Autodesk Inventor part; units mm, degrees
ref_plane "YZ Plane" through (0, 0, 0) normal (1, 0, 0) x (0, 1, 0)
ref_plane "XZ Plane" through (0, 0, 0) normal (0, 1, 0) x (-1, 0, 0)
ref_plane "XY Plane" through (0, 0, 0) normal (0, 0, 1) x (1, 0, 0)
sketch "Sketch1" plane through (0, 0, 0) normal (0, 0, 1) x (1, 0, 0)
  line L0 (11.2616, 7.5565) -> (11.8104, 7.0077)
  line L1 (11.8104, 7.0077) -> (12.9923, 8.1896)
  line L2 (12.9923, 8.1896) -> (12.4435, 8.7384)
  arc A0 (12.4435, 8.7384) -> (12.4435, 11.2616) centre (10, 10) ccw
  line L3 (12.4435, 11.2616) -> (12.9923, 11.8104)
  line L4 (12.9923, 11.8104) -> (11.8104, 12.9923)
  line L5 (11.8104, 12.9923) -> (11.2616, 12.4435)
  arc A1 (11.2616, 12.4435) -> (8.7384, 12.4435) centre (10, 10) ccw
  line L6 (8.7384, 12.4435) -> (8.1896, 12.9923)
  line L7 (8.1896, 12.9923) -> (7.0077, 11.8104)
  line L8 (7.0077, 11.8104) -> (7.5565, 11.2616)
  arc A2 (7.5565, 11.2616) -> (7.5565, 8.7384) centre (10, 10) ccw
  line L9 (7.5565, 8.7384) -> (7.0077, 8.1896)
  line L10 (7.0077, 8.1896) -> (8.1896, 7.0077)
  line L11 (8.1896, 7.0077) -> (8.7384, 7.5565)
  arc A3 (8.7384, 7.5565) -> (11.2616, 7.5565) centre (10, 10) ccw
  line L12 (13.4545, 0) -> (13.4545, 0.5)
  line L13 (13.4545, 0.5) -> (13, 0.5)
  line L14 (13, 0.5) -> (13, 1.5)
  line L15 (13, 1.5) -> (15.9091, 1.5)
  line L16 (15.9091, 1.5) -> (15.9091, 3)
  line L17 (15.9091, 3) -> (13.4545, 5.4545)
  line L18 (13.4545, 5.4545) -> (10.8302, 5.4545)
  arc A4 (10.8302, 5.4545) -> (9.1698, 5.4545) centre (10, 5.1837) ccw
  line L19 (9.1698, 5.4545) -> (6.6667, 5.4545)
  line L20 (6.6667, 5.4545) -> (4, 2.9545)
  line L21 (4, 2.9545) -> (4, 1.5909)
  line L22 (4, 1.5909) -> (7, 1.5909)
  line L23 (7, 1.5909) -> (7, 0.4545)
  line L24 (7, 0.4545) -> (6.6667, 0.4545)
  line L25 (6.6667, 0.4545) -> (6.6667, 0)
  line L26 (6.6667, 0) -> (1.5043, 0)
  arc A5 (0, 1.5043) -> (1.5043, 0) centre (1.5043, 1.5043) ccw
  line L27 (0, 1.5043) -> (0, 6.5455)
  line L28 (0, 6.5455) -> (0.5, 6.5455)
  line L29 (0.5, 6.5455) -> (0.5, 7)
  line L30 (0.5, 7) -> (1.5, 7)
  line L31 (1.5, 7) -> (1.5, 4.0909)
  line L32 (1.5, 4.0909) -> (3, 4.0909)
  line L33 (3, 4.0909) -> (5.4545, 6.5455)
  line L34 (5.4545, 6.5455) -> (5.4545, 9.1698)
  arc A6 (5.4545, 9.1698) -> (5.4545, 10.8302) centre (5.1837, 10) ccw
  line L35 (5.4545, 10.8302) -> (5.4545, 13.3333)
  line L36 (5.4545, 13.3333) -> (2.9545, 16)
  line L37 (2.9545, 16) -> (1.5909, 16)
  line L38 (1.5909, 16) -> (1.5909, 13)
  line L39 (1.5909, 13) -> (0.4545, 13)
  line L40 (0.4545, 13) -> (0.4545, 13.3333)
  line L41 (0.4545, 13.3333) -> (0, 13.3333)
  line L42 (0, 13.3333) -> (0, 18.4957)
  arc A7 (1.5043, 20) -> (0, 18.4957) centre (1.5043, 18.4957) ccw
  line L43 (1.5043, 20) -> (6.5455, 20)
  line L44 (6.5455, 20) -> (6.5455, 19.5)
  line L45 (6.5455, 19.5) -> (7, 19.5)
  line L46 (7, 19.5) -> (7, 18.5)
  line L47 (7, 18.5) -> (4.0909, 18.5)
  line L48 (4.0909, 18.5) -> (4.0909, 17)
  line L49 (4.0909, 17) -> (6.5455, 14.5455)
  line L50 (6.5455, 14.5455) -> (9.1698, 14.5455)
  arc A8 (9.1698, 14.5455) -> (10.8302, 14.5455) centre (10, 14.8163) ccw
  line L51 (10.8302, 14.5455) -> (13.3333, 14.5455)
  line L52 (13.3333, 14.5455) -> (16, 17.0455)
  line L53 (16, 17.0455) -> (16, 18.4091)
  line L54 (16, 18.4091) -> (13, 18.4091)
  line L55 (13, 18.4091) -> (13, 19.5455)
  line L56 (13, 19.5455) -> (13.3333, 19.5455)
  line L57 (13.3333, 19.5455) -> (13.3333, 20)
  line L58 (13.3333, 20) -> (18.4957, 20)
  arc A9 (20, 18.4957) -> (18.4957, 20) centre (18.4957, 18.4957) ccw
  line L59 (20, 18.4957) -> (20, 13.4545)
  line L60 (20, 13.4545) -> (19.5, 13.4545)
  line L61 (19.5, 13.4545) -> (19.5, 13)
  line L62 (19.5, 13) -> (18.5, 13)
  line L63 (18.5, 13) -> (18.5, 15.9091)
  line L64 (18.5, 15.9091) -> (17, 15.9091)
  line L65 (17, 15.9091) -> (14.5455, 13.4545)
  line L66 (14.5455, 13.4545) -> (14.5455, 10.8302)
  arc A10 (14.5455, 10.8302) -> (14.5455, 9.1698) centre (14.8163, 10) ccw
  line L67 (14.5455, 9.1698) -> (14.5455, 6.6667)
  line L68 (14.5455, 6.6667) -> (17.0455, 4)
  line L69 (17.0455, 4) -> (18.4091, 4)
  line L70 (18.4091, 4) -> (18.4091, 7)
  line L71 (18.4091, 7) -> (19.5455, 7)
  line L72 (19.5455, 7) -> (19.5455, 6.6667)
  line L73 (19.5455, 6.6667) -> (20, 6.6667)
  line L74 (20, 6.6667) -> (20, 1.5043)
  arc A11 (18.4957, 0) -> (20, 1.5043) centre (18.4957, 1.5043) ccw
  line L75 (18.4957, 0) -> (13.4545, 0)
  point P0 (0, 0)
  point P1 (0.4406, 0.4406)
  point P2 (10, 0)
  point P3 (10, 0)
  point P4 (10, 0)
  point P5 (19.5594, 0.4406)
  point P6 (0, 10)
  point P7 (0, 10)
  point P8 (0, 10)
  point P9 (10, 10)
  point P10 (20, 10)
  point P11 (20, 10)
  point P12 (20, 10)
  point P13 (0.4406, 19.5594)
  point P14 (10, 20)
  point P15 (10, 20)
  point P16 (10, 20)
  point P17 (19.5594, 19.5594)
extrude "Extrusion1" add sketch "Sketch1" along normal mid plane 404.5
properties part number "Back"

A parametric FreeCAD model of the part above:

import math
import FreeCAD as App
import Part
import Sketcher

doc = App.newDocument("Part")
body = doc.addObject("PartDesign::Body", "Body")

# Sketch on XY plane
sketch1 = body.newObject("Sketcher::SketchObject", "Sketch")
sketch1.AttachmentSupport = (doc.getObject("XY_Plane"), [""])
sketch1.MapMode = "FlatFace"
sketch1.addGeometry([
    Part.LineSegment(App.Vector(13.45, 0.5, 0), App.Vector(13.45, 0, 0)),  # 0
    Part.LineSegment(App.Vector(13.45, 0, 0), App.Vector(18.5, 0, 0)),  # 1
    Part.ArcOfCircle(Part.Circle(App.Vector(18.5, 1.5, 0), App.Vector(0, 0, 1), 1.5), math.radians(-90), math.radians(0)),  # 2
    Part.LineSegment(App.Vector(20, 1.5, 0), App.Vector(20, 6.67, 0)),  # 3
    Part.LineSegment(App.Vector(20, 6.67, 0), App.Vector(19.55, 6.67, 0)),  # 4
    Part.LineSegment(App.Vector(19.55, 6.67, 0), App.Vector(19.55, 7, 0)),  # 5
    Part.LineSegment(App.Vector(19.55, 7, 0), App.Vector(18.41, 7, 0)),  # 6
    Part.LineSegment(App.Vector(18.41, 7, 0), App.Vector(18.41, 4, 0)),  # 7
    Part.LineSegment(App.Vector(18.41, 4, 0), App.Vector(17.05, 4, 0)),  # 8
    Part.LineSegment(App.Vector(17.05, 4, 0), App.Vector(14.55, 6.67, 0)),  # 9
    Part.LineSegment(App.Vector(14.55, 6.67, 0), App.Vector(14.55, 9.17, 0)),  # 10
    Part.ArcOfCircle(Part.Circle(App.Vector(14.82, 10, 0), App.Vector(0, 0, 1), 0.87), math.radians(108), math.radians(252)),  # 11
    Part.LineSegment(App.Vector(14.55, 10.83, 0), App.Vector(14.55, 13.45, 0)),  # 12
    Part.LineSegment(App.Vector(14.55, 13.45, 0), App.Vector(17, 15.91, 0)),  # 13
    Part.LineSegment(App.Vector(17, 15.91, 0), App.Vector(18.5, 15.91, 0)),  # 14
    Part.LineSegment(App.Vector(18.5, 15.91, 0), App.Vector(18.5, 13, 0)),  # 15
    Part.LineSegment(App.Vector(18.5, 13, 0), App.Vector(19.5, 13, 0)),  # 16
    Part.LineSegment(App.Vector(19.5, 13, 0), App.Vector(19.5, 13.45, 0)),  # 17
    Part.LineSegment(App.Vector(19.5, 13.45, 0), App.Vector(20, 13.45, 0)),  # 18
    Part.LineSegment(App.Vector(20, 13.45, 0), App.Vector(20, 18.5, 0)),  # 19
    Part.ArcOfCircle(Part.Circle(App.Vector(18.5, 18.5, 0), App.Vector(0, 0, 1), 1.5), math.radians(0), math.radians(90)),  # 20
    Part.LineSegment(App.Vector(18.5, 20, 0), App.Vector(13.33, 20, 0)),  # 21
    Part.LineSegment(App.Vector(13.33, 20, 0), App.Vector(13.33, 19.55, 0)),  # 22
    Part.LineSegment(App.Vector(13.33, 19.55, 0), App.Vector(13, 19.55, 0)),  # 23
    Part.LineSegment(App.Vector(13, 19.55, 0), App.Vector(13, 18.41, 0)),  # 24
    Part.LineSegment(App.Vector(13, 18.41, 0), App.Vector(16, 18.41, 0)),  # 25
    Part.LineSegment(App.Vector(16, 18.41, 0), App.Vector(16, 17.05, 0)),  # 26
    Part.LineSegment(App.Vector(16, 17.05, 0), App.Vector(13.33, 14.55, 0)),  # 27
    Part.LineSegment(App.Vector(13.33, 14.55, 0), App.Vector(10.83, 14.55, 0)),  # 28
    Part.ArcOfCircle(Part.Circle(App.Vector(10, 14.82, 0), App.Vector(0, 0, 1), 0.87), math.radians(-162), math.radians(-18)),  # 29
    Part.LineSegment(App.Vector(9.17, 14.55, 0), App.Vector(6.55, 14.55, 0)),  # 30
    Part.LineSegment(App.Vector(6.55, 14.55, 0), App.Vector(4.09, 17, 0)),  # 31
    Part.LineSegment(App.Vector(4.09, 17, 0), App.Vector(4.09, 18.5, 0)),  # 32
    Part.LineSegment(App.Vector(4.09, 18.5, 0), App.Vector(7, 18.5, 0)),  # 33
    Part.LineSegment(App.Vector(7, 18.5, 0), App.Vector(7, 19.5, 0)),  # 34
    Part.LineSegment(App.Vector(7, 19.5, 0), App.Vector(6.55, 19.5, 0)),  # 35
    Part.LineSegment(App.Vector(6.55, 19.5, 0), App.Vector(6.55, 20, 0)),  # 36
    Part.LineSegment(App.Vector(6.55, 20, 0), App.Vector(1.5, 20, 0)),  # 37
    Part.ArcOfCircle(Part.Circle(App.Vector(1.5, 18.5, 0), App.Vector(0, 0, 1), 1.5), math.radians(90), math.radians(180)),  # 38
    Part.LineSegment(App.Vector(0, 18.5, 0), App.Vector(0, 13.33, 0)),  # 39
    Part.LineSegment(App.Vector(0, 13.33, 0), App.Vector(0.45, 13.33, 0)),  # 40
    Part.LineSegment(App.Vector(0.45, 13.33, 0), App.Vector(0.45, 13, 0)),  # 41
    Part.LineSegment(App.Vector(0.45, 13, 0), App.Vector(1.59, 13, 0)),  # 42
    Part.LineSegment(App.Vector(1.59, 13, 0), App.Vector(1.59, 16, 0)),  # 43
    Part.LineSegment(App.Vector(1.59, 16, 0), App.Vector(2.95, 16, 0)),  # 44
    Part.LineSegment(App.Vector(2.95, 16, 0), App.Vector(5.45, 13.33, 0)),  # 45
    Part.LineSegment(App.Vector(5.45, 13.33, 0), App.Vector(5.45, 10.83, 0)),  # 46
    Part.ArcOfCircle(Part.Circle(App.Vector(5.18, 10, 0), App.Vector(0, 0, 1), 0.87), math.radians(-72), math.radians(72)),  # 47
    Part.LineSegment(App.Vector(5.45, 9.17, 0), App.Vector(5.45, 6.55, 0)),  # 48
    Part.LineSegment(App.Vector(5.45, 6.55, 0), App.Vector(3, 4.09, 0)),  # 49
    Part.LineSegment(App.Vector(3, 4.09, 0), App.Vector(1.5, 4.09, 0)),  # 50
    Part.LineSegment(App.Vector(1.5, 4.09, 0), App.Vector(1.5, 7, 0)),  # 51
    Part.LineSegment(App.Vector(1.5, 7, 0), App.Vector(0.5, 7, 0)),  # 52
    Part.LineSegment(App.Vector(0.5, 7, 0), App.Vector(0.5, 6.55, 0)),  # 53
    Part.LineSegment(App.Vector(0.5, 6.55, 0), App.Vector(0, 6.55, 0)),  # 54
    Part.LineSegment(App.Vector(0, 6.55, 0), App.Vector(0, 1.5, 0)),  # 55
    Part.ArcOfCircle(Part.Circle(App.Vector(1.5, 1.5, 0), App.Vector(0, 0, 1), 1.5), math.radians(180), math.radians(270)),  # 56
    Part.LineSegment(App.Vector(1.5, 0, 0), App.Vector(6.67, 0, 0)),  # 57
    Part.LineSegment(App.Vector(6.67, 0, 0), App.Vector(6.67, 0.45, 0)),  # 58
    Part.LineSegment(App.Vector(6.67, 0.45, 0), App.Vector(7, 0.45, 0)),  # 59
    Part.LineSegment(App.Vector(7, 0.45, 0), App.Vector(7, 1.59, 0)),  # 60
    Part.LineSegment(App.Vector(7, 1.59, 0), App.Vector(4, 1.59, 0)),  # 61
    Part.LineSegment(App.Vector(4, 1.59, 0), App.Vector(4, 2.95, 0)),  # 62
    Part.LineSegment(App.Vector(4, 2.95, 0), App.Vector(6.67, 5.45, 0)),  # 63
    Part.LineSegment(App.Vector(6.67, 5.45, 0), App.Vector(9.17, 5.45, 0)),  # 64
    Part.ArcOfCircle(Part.Circle(App.Vector(10, 5.18, 0), App.Vector(0, 0, 1), 0.87), math.radians(18), math.radians(162)),  # 65
    Part.LineSegment(App.Vector(10.83, 5.45, 0), App.Vector(13.45, 5.45, 0)),  # 66
    Part.LineSegment(App.Vector(13.45, 5.45, 0), App.Vector(15.91, 3, 0)),  # 67
    Part.LineSegment(App.Vector(15.91, 3, 0), App.Vector(15.91, 1.5, 0)),  # 68
    Part.LineSegment(App.Vector(15.91, 1.5, 0), App.Vector(13, 1.5, 0)),  # 69
    Part.LineSegment(App.Vector(13, 1.5, 0), App.Vector(13, 0.5, 0)),  # 70
    Part.LineSegment(App.Vector(13, 0.5, 0), App.Vector(13.45, 0.5, 0)),  # 71
    Part.LineSegment(App.Vector(11.81, 7.01, 0), App.Vector(11.26, 7.56, 0)),  # 72
    Part.ArcOfCircle(Part.Circle(App.Vector(10, 10, 0), App.Vector(0, 0, 1), 2.75), math.radians(-117), math.radians(-63)),  # 73
    Part.LineSegment(App.Vector(8.74, 7.56, 0), App.Vector(8.19, 7.01, 0)),  # 74
    Part.LineSegment(App.Vector(8.19, 7.01, 0), App.Vector(7.01, 8.19, 0)),  # 75
    Part.LineSegment(App.Vector(7.01, 8.19, 0), App.Vector(7.56, 8.74, 0)),  # 76
    Part.ArcOfCircle(Part.Circle(App.Vector(10, 10, 0), App.Vector(0, 0, 1), 2.75), math.radians(153), math.radians(207)),  # 77
    Part.LineSegment(App.Vector(7.56, 11.26, 0), App.Vector(7.01, 11.81, 0)),  # 78
    Part.LineSegment(App.Vector(7.01, 11.81, 0), App.Vector(8.19, 12.99, 0)),  # 79
    Part.LineSegment(App.Vector(8.19, 12.99, 0), App.Vector(8.74, 12.44, 0)),  # 80
    Part.ArcOfCircle(Part.Circle(App.Vector(10, 10, 0), App.Vector(0, 0, 1), 2.75), math.radians(63), math.radians(117)),  # 81
    Part.LineSegment(App.Vector(11.26, 12.44, 0), App.Vector(11.81, 12.99, 0)),  # 82
    Part.LineSegment(App.Vector(11.81, 12.99, 0), App.Vector(12.99, 11.81, 0)),  # 83
    Part.LineSegment(App.Vector(12.99, 11.81, 0), App.Vector(12.44, 11.26, 0)),  # 84
    Part.ArcOfCircle(Part.Circle(App.Vector(10, 10, 0), App.Vector(0, 0, 1), 2.75), math.radians(-27), math.radians(27)),  # 85
    Part.LineSegment(App.Vector(12.44, 8.74, 0), App.Vector(12.99, 8.19, 0)),  # 86
    Part.LineSegment(App.Vector(12.99, 8.19, 0), App.Vector(11.81, 7.01, 0)),  # 87
], False)
sketch1.addConstraint([
    Sketcher.Constraint("Coincident", 0, 2, 1, 1),
    Sketcher.Constraint("Tangent", 1, 2, 2, 1),
    Sketcher.Constraint("Tangent", 2, 2, 3, 1),
    Sketcher.Constraint("Coincident", 3, 2, 4, 1),
    Sketcher.Constraint("Coincident", 4, 2, 5, 1),
    Sketcher.Constraint("Coincident", 5, 2, 6, 1),
    Sketcher.Constraint("Coincident", 6, 2, 7, 1),
    Sketcher.Constraint("Coincident", 7, 2, 8, 1),
    Sketcher.Constraint("Coincident", 8, 2, 9, 1),
    Sketcher.Constraint("Coincident", 9, 2, 10, 1),
    Sketcher.Constraint("Coincident", 10, 2, 11, 2),
    Sketcher.Constraint("Coincident", 11, 1, 12, 1),
    Sketcher.Constraint("Coincident", 12, 2, 13, 1),
    Sketcher.Constraint("Coincident", 13, 2, 14, 1),
    Sketcher.Constraint("Coincident", 14, 2, 15, 1),
    Sketcher.Constraint("Coincident", 15, 2, 16, 1),
    Sketcher.Constraint("Coincident", 16, 2, 17, 1),
    Sketcher.Constraint("Coincident", 17, 2, 18, 1),
    Sketcher.Constraint("Coincident", 18, 2, 19, 1),
    Sketcher.Constraint("Tangent", 19, 2, 20, 1),
    Sketcher.Constraint("Tangent", 20, 2, 21, 1),
    Sketcher.Constraint("Coincident", 21, 2, 22, 1),
    Sketcher.Constraint("Coincident", 22, 2, 23, 1),
    Sketcher.Constraint("Coincident", 23, 2, 24, 1),
    Sketcher.Constraint("Coincident", 24, 2, 25, 1),
    Sketcher.Constraint("Coincident", 25, 2, 26, 1),
    Sketcher.Constraint("Coincident", 26, 2, 27, 1),
    Sketcher.Constraint("Coincident", 27, 2, 28, 1),
    Sketcher.Constraint("Coincident", 28, 2, 29, 2),
    Sketcher.Constraint("Coincident", 29, 1, 30, 1),
    Sketcher.Constraint("Coincident", 30, 2, 31, 1),
    Sketcher.Constraint("Coincident", 31, 2, 32, 1),
    Sketcher.Constraint("Coincident", 32, 2, 33, 1),
    Sketcher.Constraint("Coincident", 33, 2, 34, 1),
    Sketcher.Constraint("Coincident", 34, 2, 35, 1),
    Sketcher.Constraint("Coincident", 35, 2, 36, 1),
    Sketcher.Constraint("Coincident", 36, 2, 37, 1),
    Sketcher.Constraint("Tangent", 37, 2, 38, 1),
    Sketcher.Constraint("Tangent", 38, 2, 39, 1),
    Sketcher.Constraint("Coincident", 39, 2, 40, 1),
    Sketcher.Constraint("Coincident", 40, 2, 41, 1),
    Sketcher.Constraint("Coincident", 41, 2, 42, 1),
    Sketcher.Constraint("Coincident", 42, 2, 43, 1),
    Sketcher.Constraint("Coincident", 43, 2, 44, 1),
    Sketcher.Constraint("Coincident", 44, 2, 45, 1),
    Sketcher.Constraint("Coincident", 45, 2, 46, 1),
    Sketcher.Constraint("Coincident", 46, 2, 47, 2),
    Sketcher.Constraint("Coincident", 47, 1, 48, 1),
    Sketcher.Constraint("Coincident", 48, 2, 49, 1),
    Sketcher.Constraint("Coincident", 49, 2, 50, 1),
    Sketcher.Constraint("Coincident", 50, 2, 51, 1),
    Sketcher.Constraint("Coincident", 51, 2, 52, 1),
    Sketcher.Constraint("Coincident", 52, 2, 53, 1),
    Sketcher.Constraint("Coincident", 53, 2, 54, 1),
    Sketcher.Constraint("Coincident", 54, 2, 55, 1),
    Sketcher.Constraint("Tangent", 55, 2, 56, 1),
    Sketcher.Constraint("Tangent", 56, 2, 57, 1),
    Sketcher.Constraint("Coincident", 57, 2, 58, 1),
    Sketcher.Constraint("Coincident", 58, 2, 59, 1),
    Sketcher.Constraint("Coincident", 59, 2, 60, 1),
    Sketcher.Constraint("Coincident", 60, 2, 61, 1),
    Sketcher.Constraint("Coincident", 61, 2, 62, 1),
    Sketcher.Constraint("Coincident", 62, 2, 63, 1),
    Sketcher.Constraint("Coincident", 63, 2, 64, 1),
    Sketcher.Constraint("Coincident", 64, 2, 65, 2),
    Sketcher.Constraint("Coincident", 65, 1, 66, 1),
    Sketcher.Constraint("Coincident", 66, 2, 67, 1),
    Sketcher.Constraint("Coincident", 67, 2, 68, 1),
    Sketcher.Constraint("Coincident", 68, 2, 69, 1),
    Sketcher.Constraint("Coincident", 69, 2, 70, 1),
    Sketcher.Constraint("Coincident", 70, 2, 71, 1),
    Sketcher.Constraint("Coincident", 71, 2, 0, 1),
    Sketcher.Constraint("Coincident", 72, 2, 73, 2),
    Sketcher.Constraint("Coincident", 73, 1, 74, 1),
    Sketcher.Constraint("Coincident", 74, 2, 75, 1),
    Sketcher.Constraint("Coincident", 75, 2, 76, 1),
    Sketcher.Constraint("Coincident", 76, 2, 77, 2),
    Sketcher.Constraint("Coincident", 77, 1, 78, 1),
    Sketcher.Constraint("Coincident", 78, 2, 79, 1),
    Sketcher.Constraint("Coincident", 79, 2, 80, 1),
    Sketcher.Constraint("Coincident", 80, 2, 81, 2),
    Sketcher.Constraint("Coincident", 81, 1, 82, 1),
    Sketcher.Constraint("Coincident", 82, 2, 83, 1),
    Sketcher.Constraint("Coincident", 83, 2, 84, 1),
    Sketcher.Constraint("Coincident", 84, 2, 85, 2),
    Sketcher.Constraint("Coincident", 85, 1, 86, 1),
    Sketcher.Constraint("Coincident", 86, 2, 87, 1),
    Sketcher.Constraint("Coincident", 87, 2, 72, 1),
    Sketcher.Constraint("Vertical", 0),
    Sketcher.Constraint("Horizontal", 1),
    Sketcher.Constraint("Vertical", 3),
    Sketcher.Constraint("Horizontal", 4),
    Sketcher.Constraint("Vertical", 5),
    Sketcher.Constraint("Horizontal", 6),
    Sketcher.Constraint("Vertical", 7),
    Sketcher.Constraint("Horizontal", 8),
    Sketcher.Constraint("Vertical", 10),
    Sketcher.Constraint("Vertical", 12),
    Sketcher.Constraint("Horizontal", 14),
    Sketcher.Constraint("Vertical", 15),
    Sketcher.Constraint("Horizontal", 16),
    Sketcher.Constraint("Vertical", 17),
    Sketcher.Constraint("Horizontal", 18),
    Sketcher.Constraint("Vertical", 19),
    Sketcher.Constraint("Horizontal", 21),
    Sketcher.Constraint("Vertical", 22),
    Sketcher.Constraint("Horizontal", 23),
    Sketcher.Constraint("Vertical", 24),
    Sketcher.Constraint("Horizontal", 25),
    Sketcher.Constraint("Vertical", 26),
    Sketcher.Constraint("Horizontal", 28),
    Sketcher.Constraint("Horizontal", 30),
    Sketcher.Constraint("Vertical", 32),
    Sketcher.Constraint("Horizontal", 33),
    Sketcher.Constraint("Vertical", 34),
    Sketcher.Constraint("Horizontal", 35),
    Sketcher.Constraint("Vertical", 36),
    Sketcher.Constraint("Horizontal", 37),
    Sketcher.Constraint("Vertical", 39),
    Sketcher.Constraint("Horizontal", 40),
    Sketcher.Constraint("Vertical", 41),
    Sketcher.Constraint("Horizontal", 42),
    Sketcher.Constraint("Vertical", 43),
    Sketcher.Constraint("Horizontal", 44),
    Sketcher.Constraint("Vertical", 46),
    Sketcher.Constraint("Vertical", 48),
    Sketcher.Constraint("Horizontal", 50),
    Sketcher.Constraint("Vertical", 51),
    Sketcher.Constraint("Horizontal", 52),
    Sketcher.Constraint("Vertical", 53),
    Sketcher.Constraint("Horizontal", 54),
    Sketcher.Constraint("Vertical", 55),
    Sketcher.Constraint("Horizontal", 57),
    Sketcher.Constraint("Vertical", 58),
    Sketcher.Constraint("Horizontal", 59),
    Sketcher.Constraint("Vertical", 60),
    Sketcher.Constraint("Horizontal", 61),
    Sketcher.Constraint("Vertical", 62),
    Sketcher.Constraint("Horizontal", 64),
    Sketcher.Constraint("Horizontal", 66),
    Sketcher.Constraint("Vertical", 68),
    Sketcher.Constraint("Horizontal", 69),
    Sketcher.Constraint("Vertical", 70),
    Sketcher.Constraint("Horizontal", 71),
    Sketcher.Constraint("Coincident", 77, 3, 73, 3),
    Sketcher.Constraint("Coincident", 81, 3, 73, 3),
    Sketcher.Constraint("Coincident", 85, 3, 73, 3),
    Sketcher.Constraint("Equal", 2, 20),
    Sketcher.Constraint("Equal", 11, 29),
    Sketcher.Constraint("Equal", 20, 38),
    Sketcher.Constraint("Equal", 29, 47),
    Sketcher.Constraint("Equal", 38, 56),
    Sketcher.Constraint("Equal", 47, 65),
    Sketcher.Constraint("Equal", 73, 77),
    Sketcher.Constraint("Equal", 77, 81),
    Sketcher.Constraint("Equal", 81, 85),
    Sketcher.Constraint("PointOnObject", 0, 2, -1),
    Sketcher.Constraint("PointOnObject", 38, 2, -2),
    Sketcher.Constraint("PointOnObject", 54, 2, -2),
    Sketcher.Constraint("PointOnObject", 56, 2, -1),
    Sketcher.Constraint("Perpendicular", 9, 27),
    Sketcher.Constraint("Perpendicular", 13, 31),
    Sketcher.Constraint("Perpendicular", 27, 45),
    Sketcher.Constraint("Perpendicular", 31, 49),
    Sketcher.Constraint("Perpendicular", 45, 63),
    Sketcher.Constraint("Perpendicular", 49, 67),
    Sketcher.Constraint("Parallel", 67, 72),
    Sketcher.Constraint("Perpendicular", 72, 74),
    Sketcher.Constraint("Perpendicular", 74, 75),
    Sketcher.Constraint("Perpendicular", 75, 76),
    Sketcher.Constraint("Perpendicular", 76, 78),
    Sketcher.Constraint("Perpendicular", 78, 79),
    Sketcher.Constraint("Perpendicular", 79, 80),
    Sketcher.Constraint("Perpendicular", 80, 82),
    Sketcher.Constraint("Perpendicular", 82, 83),
    Sketcher.Constraint("Perpendicular", 83, 84),
    Sketcher.Constraint("Perpendicular", 84, 86),
    Sketcher.Constraint("Perpendicular", 86, 87),
    Sketcher.Constraint("Horizontal", 20, 3, 38, 3),
    Sketcher.Constraint("Horizontal", 11, 3, 47, 3),
    Sketcher.Constraint("Horizontal", 47, 3, 73, 3),
    Sketcher.Constraint("Horizontal", 4, 2, 9, 2),
    Sketcher.Constraint("Horizontal", 12, 2, 17, 2),
    Sketcher.Constraint("Horizontal", 28, 2, 29, 1),
    Sketcher.Constraint("Horizontal", 16, 2, 41, 2),
    Sketcher.Constraint("Horizontal", 40, 2, 45, 2),
    Sketcher.Constraint("Horizontal", 11, 1, 46, 2),
    Sketcher.Constraint("Horizontal", 10, 2, 47, 1),
    Sketcher.Constraint("Horizontal", 6, 2, 51, 2),
    Sketcher.Constraint("Horizontal", 48, 2, 53, 2),
    Sketcher.Constraint("Horizontal", 64, 2, 65, 1),
    Sketcher.Constraint("Horizontal", 72, 2, 73, 1),
    Sketcher.Constraint("Horizontal", 80, 2, 81, 1),
    Sketcher.Constraint("Horizontal", 79, 2, 82, 2),
    Sketcher.Constraint("Horizontal", 78, 2, 83, 2),
    Sketcher.Constraint("Horizontal", 77, 1, 84, 2),
    Sketcher.Constraint("Horizontal", 76, 2, 85, 1),
    Sketcher.Constraint("Horizontal", 75, 2, 86, 2),
    Sketcher.Constraint("Vertical", 2, 3, 20, 3),
    Sketcher.Constraint("Vertical", 29, 3, 65, 3),
    Sketcher.Constraint("Vertical", 65, 3, 73, 3),
    Sketcher.Constraint("Vertical", 10, 2, 11, 1),
    Sketcher.Constraint("Vertical", 22, 2, 27, 2),
    Sketcher.Constraint("Vertical", 30, 2, 35, 2),
    Sketcher.Constraint("Vertical", 34, 2, 59, 2),
    Sketcher.Constraint("Vertical", 58, 2, 63, 2),
    Sketcher.Constraint("Vertical", 29, 1, 64, 2),
    Sketcher.Constraint("Vertical", 0, 2, 66, 2),
    Sketcher.Constraint("Vertical", 24, 2, 69, 2),
    Sketcher.Constraint("Vertical", 76, 2, 77, 1),
    Sketcher.Constraint("Vertical", 75, 2, 78, 2),
    Sketcher.Constraint("Vertical", 74, 2, 79, 2),
    Sketcher.Constraint("Equal", 4, 35),
    Sketcher.Constraint("Equal", 1, 37),
    Sketcher.Constraint("Equal", 35, 40),
    Sketcher.Constraint("Equal", 6, 42),
    Sketcher.Constraint("Equal", 8, 44),
    Sketcher.Constraint("Equal", 14, 50),
    Sketcher.Constraint("Equal", 16, 52),
    Sketcher.Constraint("Equal", 18, 54),
    Sketcher.Constraint("Equal", 21, 57),
    Sketcher.Constraint("Equal", 23, 59),
    Sketcher.Constraint("Equal", 25, 61),
    Sketcher.Constraint("Equal", 28, 64),
    Sketcher.Constraint("Equal", 33, 69),
    Sketcher.Constraint("Equal", 54, 0),
    Sketcher.Constraint("Equal", 57, 3),
    Sketcher.Constraint("Equal", 59, 5),
    Sketcher.Constraint("Equal", 61, 7),
    Sketcher.Constraint("Equal", 64, 10),
    Sketcher.Constraint("Equal", 66, 12),
    Sketcher.Constraint("Equal", 69, 15),
    Sketcher.Constraint("Equal", 71, 17),
    Sketcher.Constraint("Equal", 37, 19),
    Sketcher.Constraint("Equal", 17, 22),
    Sketcher.Constraint("Equal", 42, 24),
    Sketcher.Constraint("Equal", 44, 26),
    Sketcher.Constraint("Equal", 50, 32),
    Sketcher.Constraint("Equal", 52, 34),
    Sketcher.Constraint("Equal", 3, 39),
    Sketcher.Constraint("Equal", 7, 43),
    Sketcher.Constraint("Equal", 12, 48),
    Sketcher.Constraint("Equal", 53, 58),
    Sketcher.Constraint("Equal", 24, 60),
    Sketcher.Constraint("Equal", 26, 62),
    Sketcher.Constraint("Equal", 32, 68),
    Sketcher.Constraint("Equal", 74, 76),
    Sketcher.Constraint("DistanceX", 16, 1, 16, 2, 1.0),
    Sketcher.Constraint("DistanceX", 25, 1, 25, 2, 3.0),
    Sketcher.Constraint("Radius", 73, 2.75),
    Sketcher.Constraint("DistanceX", 14, 1, 14, 2, 1.5),
    Sketcher.Constraint("DistanceX", 18, 1, 18, 2, 0.5),
    Sketcher.Constraint("DistanceY", -1, 1, 11, 3, 10.0),
    Sketcher.Constraint("DistanceX", -1, 1, 29, 3, 10.0),
    Sketcher.Constraint("DistanceY", -1, 1, 5, 2, 7.0),
    Sketcher.Constraint("Radius", 2, 1.5043),
    Sketcher.Constraint("Radius", 11, 0.8732),
    Sketcher.Constraint("DistanceX", 28, 2, 28, 1, 2.503),
    Sketcher.Constraint("DistanceX", 33, 1, 33, 2, 2.909),
    Sketcher.Constraint("DistanceX", 1, 1, 1, 2, 5.0412),
    Sketcher.Constraint("DistanceX", 6, 2, 6, 1, 1.1364),
    Sketcher.Constraint("DistanceX", 8, 2, 8, 1, 1.3636),
    Sketcher.Constraint("DistanceX", 21, 2, 21, 1, 5.1624),
    Sketcher.Constraint("Distance", 72, 0.7761),
    Sketcher.Constraint("Distance", 75, 1.6715),
])
pad1 = body.newObject("PartDesign::Pad", "Pad")
pad1.Profile = sketch1
pad1.Length = 404.5
pad1.Midplane = True

doc.recompute()
